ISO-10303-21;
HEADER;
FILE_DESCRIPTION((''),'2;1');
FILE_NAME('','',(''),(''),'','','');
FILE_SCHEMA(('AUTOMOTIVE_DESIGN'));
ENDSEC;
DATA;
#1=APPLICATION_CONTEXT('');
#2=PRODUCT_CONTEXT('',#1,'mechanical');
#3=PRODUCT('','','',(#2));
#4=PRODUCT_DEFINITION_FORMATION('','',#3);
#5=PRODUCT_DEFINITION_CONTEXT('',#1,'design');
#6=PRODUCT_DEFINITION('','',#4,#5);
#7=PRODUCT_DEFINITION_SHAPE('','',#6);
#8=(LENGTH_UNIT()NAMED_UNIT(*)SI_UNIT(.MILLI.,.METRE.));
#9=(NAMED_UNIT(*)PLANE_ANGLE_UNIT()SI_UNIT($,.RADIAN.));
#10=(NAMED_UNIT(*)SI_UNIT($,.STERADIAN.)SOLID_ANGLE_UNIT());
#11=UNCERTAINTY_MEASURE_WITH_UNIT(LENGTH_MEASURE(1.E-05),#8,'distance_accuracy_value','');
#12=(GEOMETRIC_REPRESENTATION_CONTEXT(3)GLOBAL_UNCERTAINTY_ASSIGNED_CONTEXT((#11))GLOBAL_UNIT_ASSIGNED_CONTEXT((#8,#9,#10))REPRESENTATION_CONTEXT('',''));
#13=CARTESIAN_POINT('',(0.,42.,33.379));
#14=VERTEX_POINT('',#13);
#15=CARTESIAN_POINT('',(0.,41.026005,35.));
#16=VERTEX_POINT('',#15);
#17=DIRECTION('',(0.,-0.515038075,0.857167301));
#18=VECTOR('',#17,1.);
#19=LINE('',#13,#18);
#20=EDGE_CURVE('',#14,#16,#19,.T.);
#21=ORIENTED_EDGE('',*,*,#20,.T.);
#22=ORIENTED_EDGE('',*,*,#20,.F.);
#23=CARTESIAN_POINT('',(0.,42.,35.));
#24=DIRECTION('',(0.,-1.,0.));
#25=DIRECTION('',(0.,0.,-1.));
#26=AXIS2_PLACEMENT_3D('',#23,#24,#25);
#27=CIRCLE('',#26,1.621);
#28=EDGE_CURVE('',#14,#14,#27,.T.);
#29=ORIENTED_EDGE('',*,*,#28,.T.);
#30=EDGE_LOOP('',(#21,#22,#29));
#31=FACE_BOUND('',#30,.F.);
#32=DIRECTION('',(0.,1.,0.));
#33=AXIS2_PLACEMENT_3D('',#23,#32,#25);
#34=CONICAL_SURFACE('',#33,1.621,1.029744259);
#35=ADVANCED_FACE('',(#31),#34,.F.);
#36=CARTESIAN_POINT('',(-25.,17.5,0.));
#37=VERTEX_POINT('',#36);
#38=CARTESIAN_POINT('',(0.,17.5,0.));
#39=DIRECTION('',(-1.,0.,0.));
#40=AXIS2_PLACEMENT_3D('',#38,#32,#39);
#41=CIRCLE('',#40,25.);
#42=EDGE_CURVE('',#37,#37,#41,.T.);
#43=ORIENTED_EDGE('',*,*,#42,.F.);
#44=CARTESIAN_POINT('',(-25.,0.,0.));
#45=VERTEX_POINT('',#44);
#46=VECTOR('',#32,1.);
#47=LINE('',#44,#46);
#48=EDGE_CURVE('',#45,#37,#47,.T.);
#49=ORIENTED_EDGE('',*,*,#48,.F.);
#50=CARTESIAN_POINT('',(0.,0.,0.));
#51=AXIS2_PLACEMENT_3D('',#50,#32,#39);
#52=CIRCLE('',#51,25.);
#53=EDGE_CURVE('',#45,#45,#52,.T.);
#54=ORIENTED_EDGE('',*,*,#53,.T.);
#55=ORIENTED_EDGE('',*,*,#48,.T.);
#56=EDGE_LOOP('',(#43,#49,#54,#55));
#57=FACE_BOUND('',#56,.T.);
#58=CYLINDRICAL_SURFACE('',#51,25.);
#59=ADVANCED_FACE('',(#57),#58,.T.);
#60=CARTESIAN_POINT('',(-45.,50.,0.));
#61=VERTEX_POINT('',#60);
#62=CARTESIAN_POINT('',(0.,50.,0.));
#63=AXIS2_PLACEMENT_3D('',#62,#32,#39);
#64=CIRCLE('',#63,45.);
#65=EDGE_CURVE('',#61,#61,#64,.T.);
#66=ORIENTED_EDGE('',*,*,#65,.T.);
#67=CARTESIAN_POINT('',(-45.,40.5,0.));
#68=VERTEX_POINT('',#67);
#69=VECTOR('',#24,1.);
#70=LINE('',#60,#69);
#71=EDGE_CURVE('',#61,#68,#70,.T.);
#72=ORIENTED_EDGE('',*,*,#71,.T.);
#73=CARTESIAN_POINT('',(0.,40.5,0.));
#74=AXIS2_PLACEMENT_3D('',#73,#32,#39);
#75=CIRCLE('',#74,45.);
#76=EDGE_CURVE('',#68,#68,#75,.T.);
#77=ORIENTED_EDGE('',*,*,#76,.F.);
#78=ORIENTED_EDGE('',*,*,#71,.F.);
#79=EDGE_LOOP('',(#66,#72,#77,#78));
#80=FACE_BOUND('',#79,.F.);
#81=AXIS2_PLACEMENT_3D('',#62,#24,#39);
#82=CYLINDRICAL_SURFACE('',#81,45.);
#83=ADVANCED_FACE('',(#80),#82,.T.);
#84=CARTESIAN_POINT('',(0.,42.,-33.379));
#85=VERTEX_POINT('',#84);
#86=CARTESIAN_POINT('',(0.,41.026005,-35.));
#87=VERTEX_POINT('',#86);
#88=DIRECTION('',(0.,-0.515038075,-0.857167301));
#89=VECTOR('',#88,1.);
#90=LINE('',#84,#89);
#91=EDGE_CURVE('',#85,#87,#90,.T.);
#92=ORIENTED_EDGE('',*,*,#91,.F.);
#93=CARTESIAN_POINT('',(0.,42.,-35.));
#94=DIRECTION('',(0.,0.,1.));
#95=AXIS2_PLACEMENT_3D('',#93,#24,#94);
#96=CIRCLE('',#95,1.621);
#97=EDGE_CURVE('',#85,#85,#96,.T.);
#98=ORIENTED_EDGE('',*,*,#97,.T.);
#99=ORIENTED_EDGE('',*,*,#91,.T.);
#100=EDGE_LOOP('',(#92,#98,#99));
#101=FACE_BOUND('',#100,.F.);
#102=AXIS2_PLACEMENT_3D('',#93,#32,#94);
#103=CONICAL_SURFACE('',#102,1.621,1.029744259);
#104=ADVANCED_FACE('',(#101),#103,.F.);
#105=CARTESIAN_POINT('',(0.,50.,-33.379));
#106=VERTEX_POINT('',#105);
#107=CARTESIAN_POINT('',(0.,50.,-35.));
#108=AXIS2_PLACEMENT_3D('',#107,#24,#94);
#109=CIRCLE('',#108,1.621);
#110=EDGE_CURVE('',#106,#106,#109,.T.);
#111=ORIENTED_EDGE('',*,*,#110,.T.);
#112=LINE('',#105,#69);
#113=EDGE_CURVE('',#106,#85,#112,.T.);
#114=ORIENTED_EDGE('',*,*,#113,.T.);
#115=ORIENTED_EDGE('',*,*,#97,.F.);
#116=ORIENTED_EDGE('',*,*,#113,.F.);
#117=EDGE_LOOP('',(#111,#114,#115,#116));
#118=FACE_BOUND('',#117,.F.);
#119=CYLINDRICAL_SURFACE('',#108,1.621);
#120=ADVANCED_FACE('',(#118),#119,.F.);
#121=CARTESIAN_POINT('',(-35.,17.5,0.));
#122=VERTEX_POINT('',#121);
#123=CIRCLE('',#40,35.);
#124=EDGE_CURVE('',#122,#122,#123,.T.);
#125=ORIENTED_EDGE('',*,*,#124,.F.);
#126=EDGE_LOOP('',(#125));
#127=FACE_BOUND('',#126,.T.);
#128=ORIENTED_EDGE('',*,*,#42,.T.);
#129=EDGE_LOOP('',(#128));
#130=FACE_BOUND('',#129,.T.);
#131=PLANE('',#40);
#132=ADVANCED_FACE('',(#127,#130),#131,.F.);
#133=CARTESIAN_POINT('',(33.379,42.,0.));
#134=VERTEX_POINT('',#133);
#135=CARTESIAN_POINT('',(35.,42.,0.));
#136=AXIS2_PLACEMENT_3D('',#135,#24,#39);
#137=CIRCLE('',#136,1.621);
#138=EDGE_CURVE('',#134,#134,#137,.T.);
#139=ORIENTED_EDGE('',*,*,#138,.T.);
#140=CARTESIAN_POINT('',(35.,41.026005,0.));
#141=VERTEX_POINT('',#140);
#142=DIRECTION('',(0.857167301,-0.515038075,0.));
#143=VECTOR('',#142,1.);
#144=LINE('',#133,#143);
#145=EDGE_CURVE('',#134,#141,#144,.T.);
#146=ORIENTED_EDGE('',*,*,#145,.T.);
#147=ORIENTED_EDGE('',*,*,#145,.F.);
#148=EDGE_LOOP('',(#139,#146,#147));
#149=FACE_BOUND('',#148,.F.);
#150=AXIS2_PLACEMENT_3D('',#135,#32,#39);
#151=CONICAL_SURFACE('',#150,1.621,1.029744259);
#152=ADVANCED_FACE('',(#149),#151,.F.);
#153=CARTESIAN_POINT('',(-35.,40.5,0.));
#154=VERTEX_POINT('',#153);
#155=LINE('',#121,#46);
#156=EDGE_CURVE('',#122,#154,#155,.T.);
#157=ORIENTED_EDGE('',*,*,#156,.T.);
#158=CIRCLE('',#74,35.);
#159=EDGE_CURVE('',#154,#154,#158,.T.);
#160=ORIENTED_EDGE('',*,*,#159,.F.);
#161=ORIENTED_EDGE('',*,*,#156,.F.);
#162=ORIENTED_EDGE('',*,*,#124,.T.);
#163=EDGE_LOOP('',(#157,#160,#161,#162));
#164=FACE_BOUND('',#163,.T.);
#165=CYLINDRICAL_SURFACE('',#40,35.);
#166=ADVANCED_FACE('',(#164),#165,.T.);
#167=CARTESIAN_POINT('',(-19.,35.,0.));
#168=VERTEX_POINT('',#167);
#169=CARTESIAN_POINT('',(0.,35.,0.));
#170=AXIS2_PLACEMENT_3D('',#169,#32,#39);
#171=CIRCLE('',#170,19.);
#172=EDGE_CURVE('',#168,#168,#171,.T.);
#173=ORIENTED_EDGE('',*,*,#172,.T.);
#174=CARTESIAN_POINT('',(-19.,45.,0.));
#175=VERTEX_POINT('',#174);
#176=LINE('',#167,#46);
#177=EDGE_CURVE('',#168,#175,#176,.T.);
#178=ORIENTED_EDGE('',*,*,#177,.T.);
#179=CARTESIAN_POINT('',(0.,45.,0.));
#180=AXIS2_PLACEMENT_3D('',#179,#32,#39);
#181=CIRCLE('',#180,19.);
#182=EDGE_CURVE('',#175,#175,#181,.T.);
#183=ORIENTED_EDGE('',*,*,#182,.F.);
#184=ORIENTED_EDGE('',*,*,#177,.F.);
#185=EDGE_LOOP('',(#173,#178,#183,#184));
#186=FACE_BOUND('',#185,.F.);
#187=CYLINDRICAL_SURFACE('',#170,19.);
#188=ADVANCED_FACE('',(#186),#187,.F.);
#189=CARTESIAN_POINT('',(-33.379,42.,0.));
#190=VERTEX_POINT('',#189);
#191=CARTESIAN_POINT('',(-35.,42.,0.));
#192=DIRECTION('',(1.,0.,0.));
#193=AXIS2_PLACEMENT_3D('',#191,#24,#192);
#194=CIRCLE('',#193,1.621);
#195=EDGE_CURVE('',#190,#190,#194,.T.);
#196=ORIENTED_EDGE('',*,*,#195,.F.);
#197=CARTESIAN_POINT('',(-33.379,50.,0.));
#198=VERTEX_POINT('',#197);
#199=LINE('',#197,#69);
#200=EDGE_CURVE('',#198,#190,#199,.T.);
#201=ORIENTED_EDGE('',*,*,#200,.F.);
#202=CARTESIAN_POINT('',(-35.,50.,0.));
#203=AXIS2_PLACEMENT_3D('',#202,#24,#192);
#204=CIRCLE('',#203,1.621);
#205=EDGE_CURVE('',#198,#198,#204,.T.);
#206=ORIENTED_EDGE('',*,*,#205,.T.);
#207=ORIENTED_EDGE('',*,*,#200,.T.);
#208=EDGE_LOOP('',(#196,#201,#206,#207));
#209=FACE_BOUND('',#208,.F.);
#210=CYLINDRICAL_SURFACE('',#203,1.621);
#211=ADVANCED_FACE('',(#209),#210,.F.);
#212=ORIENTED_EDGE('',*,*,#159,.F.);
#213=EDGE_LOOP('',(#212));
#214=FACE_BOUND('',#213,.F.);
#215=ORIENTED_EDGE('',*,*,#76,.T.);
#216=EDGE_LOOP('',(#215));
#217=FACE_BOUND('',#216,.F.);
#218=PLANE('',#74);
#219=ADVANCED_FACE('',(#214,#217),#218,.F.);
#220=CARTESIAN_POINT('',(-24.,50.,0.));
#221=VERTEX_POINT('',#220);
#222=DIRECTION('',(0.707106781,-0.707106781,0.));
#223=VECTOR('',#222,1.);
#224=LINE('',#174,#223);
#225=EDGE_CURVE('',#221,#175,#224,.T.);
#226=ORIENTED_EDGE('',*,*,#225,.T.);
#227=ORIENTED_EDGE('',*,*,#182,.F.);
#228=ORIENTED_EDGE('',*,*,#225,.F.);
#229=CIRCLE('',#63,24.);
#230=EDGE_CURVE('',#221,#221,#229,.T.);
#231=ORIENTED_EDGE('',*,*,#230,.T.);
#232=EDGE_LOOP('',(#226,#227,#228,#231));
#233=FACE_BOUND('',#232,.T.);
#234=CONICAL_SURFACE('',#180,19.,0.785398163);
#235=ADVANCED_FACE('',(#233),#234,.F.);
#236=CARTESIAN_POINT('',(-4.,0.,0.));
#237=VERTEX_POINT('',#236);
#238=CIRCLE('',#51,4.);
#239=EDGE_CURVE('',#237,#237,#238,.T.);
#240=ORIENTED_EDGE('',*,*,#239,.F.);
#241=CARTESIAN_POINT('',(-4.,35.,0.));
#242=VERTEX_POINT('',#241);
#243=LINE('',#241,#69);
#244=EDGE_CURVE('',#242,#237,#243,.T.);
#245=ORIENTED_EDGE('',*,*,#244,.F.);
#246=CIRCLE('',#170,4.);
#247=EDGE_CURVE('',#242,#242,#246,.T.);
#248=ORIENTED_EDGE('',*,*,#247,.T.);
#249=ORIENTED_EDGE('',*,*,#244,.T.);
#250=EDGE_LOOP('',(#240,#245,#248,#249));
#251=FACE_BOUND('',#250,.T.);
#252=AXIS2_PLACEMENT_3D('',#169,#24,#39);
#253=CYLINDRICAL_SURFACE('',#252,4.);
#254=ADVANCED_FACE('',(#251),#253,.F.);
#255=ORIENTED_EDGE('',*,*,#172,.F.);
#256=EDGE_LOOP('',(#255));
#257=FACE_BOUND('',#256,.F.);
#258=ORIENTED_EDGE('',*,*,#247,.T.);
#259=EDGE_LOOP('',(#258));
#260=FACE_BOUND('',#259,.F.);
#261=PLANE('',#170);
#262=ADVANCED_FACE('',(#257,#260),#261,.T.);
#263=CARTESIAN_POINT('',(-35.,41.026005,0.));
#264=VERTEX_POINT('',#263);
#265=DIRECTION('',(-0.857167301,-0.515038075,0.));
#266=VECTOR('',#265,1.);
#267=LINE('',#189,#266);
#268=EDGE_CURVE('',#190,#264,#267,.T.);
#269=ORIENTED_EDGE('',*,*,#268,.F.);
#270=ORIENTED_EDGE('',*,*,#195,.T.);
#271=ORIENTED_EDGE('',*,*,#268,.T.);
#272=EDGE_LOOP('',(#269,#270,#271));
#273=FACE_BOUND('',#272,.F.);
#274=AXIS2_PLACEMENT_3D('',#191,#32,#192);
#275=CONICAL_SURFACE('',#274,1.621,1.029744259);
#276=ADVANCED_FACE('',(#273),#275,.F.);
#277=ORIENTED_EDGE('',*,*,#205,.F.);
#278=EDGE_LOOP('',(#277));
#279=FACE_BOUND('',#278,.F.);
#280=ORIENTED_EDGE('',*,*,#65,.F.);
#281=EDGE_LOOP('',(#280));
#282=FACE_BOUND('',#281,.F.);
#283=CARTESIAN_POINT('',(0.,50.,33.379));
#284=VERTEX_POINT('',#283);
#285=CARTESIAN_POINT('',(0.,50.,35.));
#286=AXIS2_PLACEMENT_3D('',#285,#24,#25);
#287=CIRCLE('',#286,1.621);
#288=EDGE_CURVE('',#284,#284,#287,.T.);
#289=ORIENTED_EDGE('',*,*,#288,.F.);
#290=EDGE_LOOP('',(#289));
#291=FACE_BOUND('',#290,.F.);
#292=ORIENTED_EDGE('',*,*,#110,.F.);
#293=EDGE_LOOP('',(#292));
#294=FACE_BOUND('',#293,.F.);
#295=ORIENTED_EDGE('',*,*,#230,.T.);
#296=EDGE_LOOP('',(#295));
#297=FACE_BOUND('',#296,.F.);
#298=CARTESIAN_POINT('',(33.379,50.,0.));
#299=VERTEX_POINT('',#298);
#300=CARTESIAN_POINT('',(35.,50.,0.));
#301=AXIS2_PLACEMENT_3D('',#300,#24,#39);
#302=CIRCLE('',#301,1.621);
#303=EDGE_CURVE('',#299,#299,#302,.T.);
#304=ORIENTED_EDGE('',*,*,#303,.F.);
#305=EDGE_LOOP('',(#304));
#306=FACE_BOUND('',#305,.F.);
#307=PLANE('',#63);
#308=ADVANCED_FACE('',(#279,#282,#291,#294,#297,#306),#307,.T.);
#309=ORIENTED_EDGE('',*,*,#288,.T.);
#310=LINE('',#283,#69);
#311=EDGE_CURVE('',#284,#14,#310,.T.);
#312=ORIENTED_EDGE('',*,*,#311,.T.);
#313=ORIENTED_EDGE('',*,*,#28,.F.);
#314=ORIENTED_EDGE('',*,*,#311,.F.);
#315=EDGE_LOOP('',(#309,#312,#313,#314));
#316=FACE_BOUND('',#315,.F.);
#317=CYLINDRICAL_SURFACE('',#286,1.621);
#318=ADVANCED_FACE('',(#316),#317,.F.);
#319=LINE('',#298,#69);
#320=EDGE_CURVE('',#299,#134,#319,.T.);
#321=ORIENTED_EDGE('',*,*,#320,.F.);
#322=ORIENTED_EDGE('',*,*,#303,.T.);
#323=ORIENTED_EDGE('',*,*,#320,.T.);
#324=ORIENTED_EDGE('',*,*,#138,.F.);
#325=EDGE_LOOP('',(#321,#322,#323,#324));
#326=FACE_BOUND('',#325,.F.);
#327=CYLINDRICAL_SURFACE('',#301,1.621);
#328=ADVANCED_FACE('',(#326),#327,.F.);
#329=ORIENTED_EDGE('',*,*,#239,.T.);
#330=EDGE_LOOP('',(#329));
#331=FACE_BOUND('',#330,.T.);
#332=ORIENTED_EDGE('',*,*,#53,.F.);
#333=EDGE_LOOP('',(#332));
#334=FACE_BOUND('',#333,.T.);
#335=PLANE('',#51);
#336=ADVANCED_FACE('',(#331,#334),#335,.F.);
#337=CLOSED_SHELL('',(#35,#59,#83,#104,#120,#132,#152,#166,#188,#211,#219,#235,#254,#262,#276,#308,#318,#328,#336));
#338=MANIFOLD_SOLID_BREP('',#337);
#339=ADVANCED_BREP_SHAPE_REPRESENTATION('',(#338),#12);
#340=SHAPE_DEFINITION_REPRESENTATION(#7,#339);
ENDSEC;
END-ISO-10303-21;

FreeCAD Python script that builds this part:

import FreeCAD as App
import Part
import Sketcher

V = App.Vector
Q = App.Units.Quantity


def edges_at(feature, points):
    """Names of the edges that pass closest to the given points."""
    edges = feature.Shape.Edges
    near = lambda p: min(range(len(edges)), key=lambda i: edges[i].distToShape(Part.Vertex(*p))[0])
    return sorted({f"Edge{near(p) + 1}" for p in points})

doc = App.newDocument("Part")
body = doc.addObject("PartDesign::Body", "Body")

sketch1 = body.newObject("Sketcher::SketchObject", "Sketch")
sketch1.AttachmentSupport = (doc.getObject("XY_Plane"), [""])
sketch1.MapMode = "FlatFace"
sketch1.addGeometry(Part.LineSegment(V(-25, 0, 0), V(-4, 0, 0)), False)
sketch1.addGeometry(Part.LineSegment(V(-4, 0, 0), V(-4, 35, 0)), False)
sketch1.addGeometry(Part.LineSegment(V(-4, 35, 0), V(-19, 35, 0)), False)
sketch1.addGeometry(Part.LineSegment(V(-19, 35, 0), V(-19, 50, 0)), False)
sketch1.addGeometry(Part.LineSegment(V(-19, 50, 0), V(-45, 50, 0)), False)
sketch1.addGeometry(Part.LineSegment(V(-45, 50, 0), V(-45, 40, 0)), False)
sketch1.addGeometry(Part.LineSegment(V(-45, 40, 0), V(-35, 40, 0)), False)
sketch1.addGeometry(Part.LineSegment(V(-35, 40, 0), V(-35, 18, 0)), False)
sketch1.addGeometry(Part.LineSegment(V(-35, 18, 0), V(-25, 18, 0)), False)
sketch1.addGeometry(Part.LineSegment(V(-25, 18, 0), V(-25, 0, 0)), False)
sketch1.addConstraint(Sketcher.Constraint("Coincident", 0, 2, 1, 1))
sketch1.addConstraint(Sketcher.Constraint("Coincident", 1, 2, 2, 1))
sketch1.addConstraint(Sketcher.Constraint("Coincident", 2, 2, 3, 1))
sketch1.addConstraint(Sketcher.Constraint("Coincident", 3, 2, 4, 1))
sketch1.addConstraint(Sketcher.Constraint("Coincident", 4, 2, 5, 1))
sketch1.addConstraint(Sketcher.Constraint("Coincident", 5, 2, 6, 1))
sketch1.addConstraint(Sketcher.Constraint("Coincident", 6, 2, 7, 1))
sketch1.addConstraint(Sketcher.Constraint("Coincident", 7, 2, 8, 1))
sketch1.addConstraint(Sketcher.Constraint("Coincident", 8, 2, 9, 1))
sketch1.addConstraint(Sketcher.Constraint("Coincident", 9, 2, 0, 1))
sketch1.addConstraint(Sketcher.Constraint("Horizontal", 0))
sketch1.addConstraint(Sketcher.Constraint("Vertical", 1))
sketch1.addConstraint(Sketcher.Constraint("Horizontal", 2))
sketch1.addConstraint(Sketcher.Constraint("Vertical", 3))
sketch1.addConstraint(Sketcher.Constraint("Horizontal", 4))
sketch1.addConstraint(Sketcher.Constraint("Vertical", 5))
sketch1.addConstraint(Sketcher.Constraint("Horizontal", 6))
sketch1.addConstraint(Sketcher.Constraint("Vertical", 7))
sketch1.addConstraint(Sketcher.Constraint("Horizontal", 8))
sketch1.addConstraint(Sketcher.Constraint("Vertical", 9))
sketch1.addConstraint(Sketcher.Constraint("PointOnObject", 0, 2, -1))
sketch1.addConstraint(Sketcher.Constraint("Equal", 6, 8))
sketch1.addConstraint(Sketcher.Constraint("Equal", 2, 3))
sketch1.addConstraint(Sketcher.Constraint("DistanceX", 2, 2, 2, 1, Q("15 mm")))
sketch1.addConstraint(Sketcher.Constraint("DistanceY", 1, 1, 1, 2, Q("35 mm")))
sketch1.addConstraint(Sketcher.Constraint("DistanceY", 7, 2, 7, 1, Q("23 mm")))
sketch1.addConstraint(Sketcher.Constraint("DistanceY", 9, 2, 9, 1, Q("17.5 mm")))
sketch1.addConstraint(Sketcher.Constraint("DistanceX", 6, 2, -1, 1, Q("35 mm")))
sketch1.addConstraint(Sketcher.Constraint("DistanceX", 0, 1, 0, 2, Q("21 mm")))
sketch1.addConstraint(Sketcher.Constraint("DistanceX", 4, 2, 4, 1, Q("26 mm")))
revolution = body.newObject("PartDesign::Revolution", "Revolution")
revolution.Profile = sketch1
revolution.ReferenceAxis = (sketch1, ["V_Axis"])
revolution.Angle = 360
doc.recompute()

chamfer = body.newObject("PartDesign::Chamfer", "Chamfer")
chamfer.Base = (revolution, edges_at(revolution, [(19, 50, 0)]))
chamfer.Size = 5

sketch2 = body.newObject("Sketcher::SketchObject", "Sketch001")
sketch2.AttachmentSupport = (doc.getObject("XZ_Plane"), [""])
sketch2.MapMode = "FlatFace"
sketch2.AttachmentOffset = App.Placement(V(0, 0, -50), App.Rotation())
sketch2.addGeometry(Part.Circle(V(0, -35, 0), V(0, 0, 1), 1.6), False)
sketch2.addConstraint(Sketcher.Constraint("PointOnObject", 0, 3, -2))
sketch2.addConstraint(Sketcher.Constraint("Diameter", 0, Q("3.242 mm")))
sketch2.addConstraint(Sketcher.Constraint("DistanceY", 0, 3, -1, 1, Q("35 mm")))
doc.recompute()
hole = body.newObject("PartDesign::Hole", "Hole")
hole.Profile = sketch2
hole.ThreadType = "None"
hole.Diameter = 3.242
hole.DepthType = "Dimension"
hole.Depth = 8
hole.DrillPoint = "Angled"
hole.DrillPointAngle = 118
hole.Reversed = True
doc.recompute()

polarpattern = body.newObject("PartDesign::PolarPattern", "PolarPattern")
polarpattern.Originals = [hole]
polarpattern.Axis = (doc.getObject("Y_Axis"), [""])
polarpattern.Angle = 360
polarpattern.Occurrences = 4
body.Tip = polarpattern

doc.recompute()
